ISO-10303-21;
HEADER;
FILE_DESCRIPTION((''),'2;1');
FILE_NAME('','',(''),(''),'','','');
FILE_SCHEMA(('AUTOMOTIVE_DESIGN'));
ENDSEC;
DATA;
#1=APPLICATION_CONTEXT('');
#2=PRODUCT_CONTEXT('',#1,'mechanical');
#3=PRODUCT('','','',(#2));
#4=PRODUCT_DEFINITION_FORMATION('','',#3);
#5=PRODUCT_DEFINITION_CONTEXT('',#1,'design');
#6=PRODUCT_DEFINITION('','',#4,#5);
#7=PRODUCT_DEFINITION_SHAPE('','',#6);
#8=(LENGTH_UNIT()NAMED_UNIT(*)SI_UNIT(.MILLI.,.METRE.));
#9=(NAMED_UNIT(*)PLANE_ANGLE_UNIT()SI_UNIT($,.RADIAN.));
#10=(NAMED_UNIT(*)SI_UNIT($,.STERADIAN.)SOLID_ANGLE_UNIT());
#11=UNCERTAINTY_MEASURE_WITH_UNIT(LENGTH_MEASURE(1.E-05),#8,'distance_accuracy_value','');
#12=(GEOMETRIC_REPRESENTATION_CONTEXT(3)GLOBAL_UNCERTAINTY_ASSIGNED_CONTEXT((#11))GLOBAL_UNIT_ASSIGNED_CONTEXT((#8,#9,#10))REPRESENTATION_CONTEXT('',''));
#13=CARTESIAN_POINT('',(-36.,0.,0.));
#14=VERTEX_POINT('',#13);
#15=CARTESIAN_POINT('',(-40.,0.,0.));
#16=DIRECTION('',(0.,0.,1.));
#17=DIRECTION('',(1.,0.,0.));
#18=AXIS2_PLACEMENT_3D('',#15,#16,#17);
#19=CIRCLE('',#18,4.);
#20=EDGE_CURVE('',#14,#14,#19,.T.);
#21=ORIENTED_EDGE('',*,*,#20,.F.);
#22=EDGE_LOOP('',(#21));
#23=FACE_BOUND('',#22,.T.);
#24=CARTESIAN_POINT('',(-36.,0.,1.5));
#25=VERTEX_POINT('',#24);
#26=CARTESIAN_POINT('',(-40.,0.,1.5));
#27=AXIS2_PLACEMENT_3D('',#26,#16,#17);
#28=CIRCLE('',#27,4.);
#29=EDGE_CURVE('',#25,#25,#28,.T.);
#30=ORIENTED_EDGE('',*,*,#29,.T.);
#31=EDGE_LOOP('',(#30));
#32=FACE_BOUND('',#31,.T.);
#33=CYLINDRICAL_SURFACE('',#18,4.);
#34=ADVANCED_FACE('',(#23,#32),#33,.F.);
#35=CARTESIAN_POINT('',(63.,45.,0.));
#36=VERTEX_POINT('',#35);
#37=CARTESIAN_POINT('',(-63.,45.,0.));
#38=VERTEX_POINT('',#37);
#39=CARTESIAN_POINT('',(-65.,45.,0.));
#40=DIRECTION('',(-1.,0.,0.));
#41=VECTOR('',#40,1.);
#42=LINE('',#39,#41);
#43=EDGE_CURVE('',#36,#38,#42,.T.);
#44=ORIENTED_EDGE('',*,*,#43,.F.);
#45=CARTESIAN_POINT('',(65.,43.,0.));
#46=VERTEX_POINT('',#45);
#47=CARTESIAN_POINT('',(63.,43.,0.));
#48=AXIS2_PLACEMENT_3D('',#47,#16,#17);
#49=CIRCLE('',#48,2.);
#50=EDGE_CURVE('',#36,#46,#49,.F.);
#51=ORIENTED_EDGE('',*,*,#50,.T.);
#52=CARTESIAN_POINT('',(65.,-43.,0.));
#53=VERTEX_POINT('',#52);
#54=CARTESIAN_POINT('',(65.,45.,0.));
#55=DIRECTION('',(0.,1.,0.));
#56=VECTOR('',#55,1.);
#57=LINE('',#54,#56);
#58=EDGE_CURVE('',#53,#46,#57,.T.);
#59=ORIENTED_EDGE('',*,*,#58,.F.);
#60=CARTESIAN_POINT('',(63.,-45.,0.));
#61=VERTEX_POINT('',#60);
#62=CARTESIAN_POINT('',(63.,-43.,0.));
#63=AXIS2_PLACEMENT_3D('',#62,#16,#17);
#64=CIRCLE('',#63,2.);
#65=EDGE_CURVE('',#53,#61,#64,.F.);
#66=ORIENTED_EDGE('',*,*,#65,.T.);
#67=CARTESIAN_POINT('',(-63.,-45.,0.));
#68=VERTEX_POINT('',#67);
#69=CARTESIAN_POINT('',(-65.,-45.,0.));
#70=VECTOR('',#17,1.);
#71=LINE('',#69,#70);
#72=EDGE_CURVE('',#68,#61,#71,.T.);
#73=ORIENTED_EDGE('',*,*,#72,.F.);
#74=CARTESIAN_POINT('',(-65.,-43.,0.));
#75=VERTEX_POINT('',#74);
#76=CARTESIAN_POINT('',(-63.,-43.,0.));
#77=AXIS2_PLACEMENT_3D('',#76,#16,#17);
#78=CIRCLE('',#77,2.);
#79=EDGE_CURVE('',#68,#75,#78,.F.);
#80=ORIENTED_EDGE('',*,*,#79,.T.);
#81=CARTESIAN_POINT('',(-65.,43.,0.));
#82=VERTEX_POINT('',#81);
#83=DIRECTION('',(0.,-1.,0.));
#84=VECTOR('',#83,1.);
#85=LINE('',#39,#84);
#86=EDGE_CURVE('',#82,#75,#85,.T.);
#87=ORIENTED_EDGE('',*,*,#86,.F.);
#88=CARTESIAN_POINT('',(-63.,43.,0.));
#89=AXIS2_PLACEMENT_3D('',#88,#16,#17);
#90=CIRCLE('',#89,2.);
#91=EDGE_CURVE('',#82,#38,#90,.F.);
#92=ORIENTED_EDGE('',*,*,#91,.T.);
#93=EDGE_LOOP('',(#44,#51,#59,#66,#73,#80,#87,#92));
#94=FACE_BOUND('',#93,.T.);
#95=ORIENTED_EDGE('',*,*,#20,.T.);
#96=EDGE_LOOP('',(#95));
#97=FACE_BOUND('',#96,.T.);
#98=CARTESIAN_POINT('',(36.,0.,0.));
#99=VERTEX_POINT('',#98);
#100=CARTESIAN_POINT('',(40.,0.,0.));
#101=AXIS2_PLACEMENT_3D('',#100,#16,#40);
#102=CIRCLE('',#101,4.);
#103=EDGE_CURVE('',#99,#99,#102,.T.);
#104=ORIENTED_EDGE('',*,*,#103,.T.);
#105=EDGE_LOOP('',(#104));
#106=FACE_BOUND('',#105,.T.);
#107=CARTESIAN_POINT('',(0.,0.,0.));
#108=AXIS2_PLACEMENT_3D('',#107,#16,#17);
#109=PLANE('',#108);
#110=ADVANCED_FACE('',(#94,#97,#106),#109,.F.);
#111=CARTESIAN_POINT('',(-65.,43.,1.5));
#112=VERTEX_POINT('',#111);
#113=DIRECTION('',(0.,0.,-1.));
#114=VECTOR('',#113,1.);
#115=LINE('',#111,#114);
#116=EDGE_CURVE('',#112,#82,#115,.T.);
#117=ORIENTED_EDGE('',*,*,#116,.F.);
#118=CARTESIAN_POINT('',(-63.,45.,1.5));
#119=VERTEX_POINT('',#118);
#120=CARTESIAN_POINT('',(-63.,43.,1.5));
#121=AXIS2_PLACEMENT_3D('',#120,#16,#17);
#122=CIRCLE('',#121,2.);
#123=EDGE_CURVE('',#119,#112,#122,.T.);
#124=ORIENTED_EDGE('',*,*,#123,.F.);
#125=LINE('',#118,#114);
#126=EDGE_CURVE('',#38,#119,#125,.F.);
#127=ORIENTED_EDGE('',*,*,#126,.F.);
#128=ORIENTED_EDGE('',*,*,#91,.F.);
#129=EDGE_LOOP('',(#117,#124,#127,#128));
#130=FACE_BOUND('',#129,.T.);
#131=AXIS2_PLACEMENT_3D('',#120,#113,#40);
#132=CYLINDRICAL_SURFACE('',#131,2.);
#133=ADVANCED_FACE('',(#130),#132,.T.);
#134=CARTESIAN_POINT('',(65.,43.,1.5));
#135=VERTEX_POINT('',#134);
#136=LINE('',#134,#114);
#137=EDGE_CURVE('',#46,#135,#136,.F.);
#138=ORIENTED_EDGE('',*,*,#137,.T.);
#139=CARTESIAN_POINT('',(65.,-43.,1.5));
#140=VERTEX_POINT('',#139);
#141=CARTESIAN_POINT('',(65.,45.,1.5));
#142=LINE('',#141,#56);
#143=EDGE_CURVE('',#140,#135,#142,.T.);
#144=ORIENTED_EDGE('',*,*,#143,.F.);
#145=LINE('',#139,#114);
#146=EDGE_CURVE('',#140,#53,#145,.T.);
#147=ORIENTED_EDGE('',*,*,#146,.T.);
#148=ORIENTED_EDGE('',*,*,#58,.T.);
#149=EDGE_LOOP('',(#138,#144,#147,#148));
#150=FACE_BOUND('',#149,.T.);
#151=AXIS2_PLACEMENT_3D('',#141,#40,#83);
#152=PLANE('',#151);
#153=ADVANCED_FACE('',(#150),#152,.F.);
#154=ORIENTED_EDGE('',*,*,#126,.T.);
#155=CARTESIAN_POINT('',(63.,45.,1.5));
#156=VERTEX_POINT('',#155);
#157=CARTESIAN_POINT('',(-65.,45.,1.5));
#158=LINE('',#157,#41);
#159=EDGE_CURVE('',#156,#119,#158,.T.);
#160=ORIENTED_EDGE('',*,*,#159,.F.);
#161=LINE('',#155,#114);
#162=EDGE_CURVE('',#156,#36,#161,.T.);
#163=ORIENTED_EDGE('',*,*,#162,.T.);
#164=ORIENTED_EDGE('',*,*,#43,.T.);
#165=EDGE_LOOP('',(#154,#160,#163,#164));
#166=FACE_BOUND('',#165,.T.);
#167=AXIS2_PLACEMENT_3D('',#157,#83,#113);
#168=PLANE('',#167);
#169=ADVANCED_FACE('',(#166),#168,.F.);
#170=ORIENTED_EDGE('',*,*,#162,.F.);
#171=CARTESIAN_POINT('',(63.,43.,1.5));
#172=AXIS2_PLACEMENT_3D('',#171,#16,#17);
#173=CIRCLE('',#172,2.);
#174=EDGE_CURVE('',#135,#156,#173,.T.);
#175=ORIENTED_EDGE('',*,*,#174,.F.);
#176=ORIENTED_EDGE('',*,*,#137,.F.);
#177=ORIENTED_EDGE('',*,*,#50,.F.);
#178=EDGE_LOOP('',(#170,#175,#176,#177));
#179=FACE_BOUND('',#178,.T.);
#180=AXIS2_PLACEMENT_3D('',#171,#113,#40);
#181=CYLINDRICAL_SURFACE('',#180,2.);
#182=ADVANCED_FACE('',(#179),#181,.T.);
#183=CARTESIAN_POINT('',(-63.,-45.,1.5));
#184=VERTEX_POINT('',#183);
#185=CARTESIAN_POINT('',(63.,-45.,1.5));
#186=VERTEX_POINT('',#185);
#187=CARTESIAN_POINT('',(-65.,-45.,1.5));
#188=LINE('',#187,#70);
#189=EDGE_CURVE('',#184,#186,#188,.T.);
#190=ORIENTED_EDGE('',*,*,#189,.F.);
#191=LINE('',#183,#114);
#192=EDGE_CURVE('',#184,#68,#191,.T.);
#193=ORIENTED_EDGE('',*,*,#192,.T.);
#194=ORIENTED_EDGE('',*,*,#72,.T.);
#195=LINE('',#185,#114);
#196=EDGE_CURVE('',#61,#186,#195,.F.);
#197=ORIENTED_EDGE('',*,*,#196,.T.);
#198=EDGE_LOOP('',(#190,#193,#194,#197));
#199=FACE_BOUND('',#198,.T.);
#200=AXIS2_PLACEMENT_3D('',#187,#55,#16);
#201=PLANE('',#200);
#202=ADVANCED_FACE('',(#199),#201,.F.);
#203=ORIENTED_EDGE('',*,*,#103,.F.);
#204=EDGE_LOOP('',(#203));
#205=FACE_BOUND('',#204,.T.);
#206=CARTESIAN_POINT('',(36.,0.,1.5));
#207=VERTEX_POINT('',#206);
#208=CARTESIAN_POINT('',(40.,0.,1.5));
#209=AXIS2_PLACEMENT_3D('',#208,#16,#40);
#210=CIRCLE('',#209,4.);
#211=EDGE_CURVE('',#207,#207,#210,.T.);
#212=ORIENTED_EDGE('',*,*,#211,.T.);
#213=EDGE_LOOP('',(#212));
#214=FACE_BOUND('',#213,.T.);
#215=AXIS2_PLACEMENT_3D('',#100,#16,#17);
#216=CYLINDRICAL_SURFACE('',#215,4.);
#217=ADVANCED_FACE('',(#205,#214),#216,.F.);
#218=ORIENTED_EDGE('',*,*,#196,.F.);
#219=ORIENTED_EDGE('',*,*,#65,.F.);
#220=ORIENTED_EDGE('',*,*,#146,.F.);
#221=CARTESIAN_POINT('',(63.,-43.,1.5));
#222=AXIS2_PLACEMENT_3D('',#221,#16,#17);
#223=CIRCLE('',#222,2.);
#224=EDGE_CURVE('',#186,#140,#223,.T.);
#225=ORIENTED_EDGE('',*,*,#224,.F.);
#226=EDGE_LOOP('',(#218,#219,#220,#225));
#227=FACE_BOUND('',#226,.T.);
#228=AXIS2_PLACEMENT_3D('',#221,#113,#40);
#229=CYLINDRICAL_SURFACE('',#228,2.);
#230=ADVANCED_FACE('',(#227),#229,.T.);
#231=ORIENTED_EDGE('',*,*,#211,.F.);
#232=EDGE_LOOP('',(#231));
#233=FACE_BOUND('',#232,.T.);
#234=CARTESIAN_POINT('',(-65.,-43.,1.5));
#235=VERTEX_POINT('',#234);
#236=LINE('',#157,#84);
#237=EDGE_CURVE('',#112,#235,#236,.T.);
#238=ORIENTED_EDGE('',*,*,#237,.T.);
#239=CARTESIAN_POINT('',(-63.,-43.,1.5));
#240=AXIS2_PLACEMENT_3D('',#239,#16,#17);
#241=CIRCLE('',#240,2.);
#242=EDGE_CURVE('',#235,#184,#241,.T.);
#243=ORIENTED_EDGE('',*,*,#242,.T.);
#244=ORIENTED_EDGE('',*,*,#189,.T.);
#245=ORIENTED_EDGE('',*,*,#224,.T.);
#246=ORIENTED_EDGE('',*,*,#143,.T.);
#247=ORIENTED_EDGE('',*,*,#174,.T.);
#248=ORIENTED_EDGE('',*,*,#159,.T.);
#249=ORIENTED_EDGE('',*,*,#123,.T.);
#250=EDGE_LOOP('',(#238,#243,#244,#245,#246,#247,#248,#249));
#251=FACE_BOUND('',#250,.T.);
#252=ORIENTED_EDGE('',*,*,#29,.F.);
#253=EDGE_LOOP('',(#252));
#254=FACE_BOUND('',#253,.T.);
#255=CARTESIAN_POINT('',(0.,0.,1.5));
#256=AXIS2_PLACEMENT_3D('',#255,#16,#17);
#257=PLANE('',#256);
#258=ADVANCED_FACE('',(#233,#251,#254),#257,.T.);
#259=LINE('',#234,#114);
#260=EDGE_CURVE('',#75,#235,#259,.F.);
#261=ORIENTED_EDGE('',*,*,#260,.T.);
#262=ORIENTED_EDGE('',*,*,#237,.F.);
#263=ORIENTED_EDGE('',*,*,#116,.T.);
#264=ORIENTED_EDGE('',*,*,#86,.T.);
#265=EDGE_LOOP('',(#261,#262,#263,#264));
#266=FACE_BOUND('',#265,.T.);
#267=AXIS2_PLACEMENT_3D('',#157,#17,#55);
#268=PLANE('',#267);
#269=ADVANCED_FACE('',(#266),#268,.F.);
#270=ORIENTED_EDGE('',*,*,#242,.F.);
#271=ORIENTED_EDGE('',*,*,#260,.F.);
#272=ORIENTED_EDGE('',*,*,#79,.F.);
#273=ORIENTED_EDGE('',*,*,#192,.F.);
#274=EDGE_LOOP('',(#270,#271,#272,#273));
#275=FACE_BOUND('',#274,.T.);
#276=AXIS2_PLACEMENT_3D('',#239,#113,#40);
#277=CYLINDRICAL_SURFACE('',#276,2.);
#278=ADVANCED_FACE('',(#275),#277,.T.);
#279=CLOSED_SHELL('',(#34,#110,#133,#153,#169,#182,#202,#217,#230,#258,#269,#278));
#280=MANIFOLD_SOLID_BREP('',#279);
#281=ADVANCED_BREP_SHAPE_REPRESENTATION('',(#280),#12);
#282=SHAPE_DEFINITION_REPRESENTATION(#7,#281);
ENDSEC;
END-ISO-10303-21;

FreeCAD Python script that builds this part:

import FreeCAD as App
import Part
import Sketcher
Q = App.Units.Quantity


def edges_at(feature, points):
    """Names of the edges that pass closest to the given points."""
    edges = feature.Shape.Edges
    near = lambda p: min(range(len(edges)), key=lambda i: edges[i].distToShape(Part.Vertex(*p))[0])
    return sorted({f"Edge{near(p) + 1}" for p in points})


def add_polygon(sketch, points):
    """Adds a closed chain of lines whose ends are joined by coincident constraints."""
    first, n = sketch.GeometryCount, len(points)
    for a, b in zip(points, points[1:] + points[:1]):
        sketch.addGeometry(Part.LineSegment(App.Vector(*a, 0), App.Vector(*b, 0)), False)
    for i in range(n):
        sketch.addConstraint(Sketcher.Constraint("Coincident", first + i, 2, first + (i + 1) % n, 1))

doc = App.newDocument("Part")
body = doc.addObject("PartDesign::Body", "Body")

# Sketch on XY plane
sketch1 = body.newObject("Sketcher::SketchObject", "Sketch")
sketch1.AttachmentSupport = (doc.getObject("XY_Plane"), [""])
sketch1.MapMode = "FlatFace"
add_polygon(sketch1, [(-65, 45), (-65, -45), (65, -45), (65, 45)])  # lines 0-3
sketch1.addConstraint([
    Sketcher.Constraint("Vertical", 0),
    Sketcher.Constraint("Horizontal", 1),
    Sketcher.Constraint("Vertical", 2),
    Sketcher.Constraint("Horizontal", 3),
    Sketcher.Constraint("Symmetric", 0, 2, 2, 2, -1, 1),
    Sketcher.Constraint("DistanceX", 1, 1, 1, 2, Q("130 mm")),
    Sketcher.Constraint("DistanceY", 0, 2, 0, 1, Q("90 mm")),
])
pad1 = body.newObject("PartDesign::Pad", "Pad")
pad1.Profile = sketch1
pad1.Length = 1.5

# Sketch on XY plane
sketch2 = body.newObject("Sketcher::SketchObject", "Sketch001")
sketch2.AttachmentSupport = (doc.getObject("XY_Plane"), [""])
sketch2.MapMode = "FlatFace"
sketch2.AttachmentOffset = App.Placement(App.Vector(0, 0, 1.5), App.Rotation())
sketch2.addGeometry([
    Part.Circle(App.Vector(-40, 0, 0), App.Vector(0, 0, 1), 4),
    Part.Circle(App.Vector(40, 0, 0), App.Vector(0, 0, 1), 4),
], False)
sketch2.addConstraint([
    Sketcher.Constraint("Equal", 0, 1),
    Sketcher.Constraint("Symmetric", 0, 3, 1, 3, -1, 1),
    Sketcher.Constraint("PointOnObject", 0, 3, -1),
    Sketcher.Constraint("Diameter", 0, Q("8 mm")),
    Sketcher.Constraint("DistanceX", 0, 3, -1, 1, Q("40 mm")),
])
pocket1 = body.newObject("PartDesign::Pocket", "Pocket")
pocket1.Profile = sketch2
pocket1.Length = 1.5
doc.recompute()

fillet = body.newObject("PartDesign::Fillet", "Fillet")
fillet.Base = (pocket1, edges_at(pocket1, [
    (65, -45, 0.75),
    (-65, -45, 0.75),
    (-65, 45, 0.75),
    (65, 45, 0.75),
]))
fillet.Radius = 2

doc.recompute()
